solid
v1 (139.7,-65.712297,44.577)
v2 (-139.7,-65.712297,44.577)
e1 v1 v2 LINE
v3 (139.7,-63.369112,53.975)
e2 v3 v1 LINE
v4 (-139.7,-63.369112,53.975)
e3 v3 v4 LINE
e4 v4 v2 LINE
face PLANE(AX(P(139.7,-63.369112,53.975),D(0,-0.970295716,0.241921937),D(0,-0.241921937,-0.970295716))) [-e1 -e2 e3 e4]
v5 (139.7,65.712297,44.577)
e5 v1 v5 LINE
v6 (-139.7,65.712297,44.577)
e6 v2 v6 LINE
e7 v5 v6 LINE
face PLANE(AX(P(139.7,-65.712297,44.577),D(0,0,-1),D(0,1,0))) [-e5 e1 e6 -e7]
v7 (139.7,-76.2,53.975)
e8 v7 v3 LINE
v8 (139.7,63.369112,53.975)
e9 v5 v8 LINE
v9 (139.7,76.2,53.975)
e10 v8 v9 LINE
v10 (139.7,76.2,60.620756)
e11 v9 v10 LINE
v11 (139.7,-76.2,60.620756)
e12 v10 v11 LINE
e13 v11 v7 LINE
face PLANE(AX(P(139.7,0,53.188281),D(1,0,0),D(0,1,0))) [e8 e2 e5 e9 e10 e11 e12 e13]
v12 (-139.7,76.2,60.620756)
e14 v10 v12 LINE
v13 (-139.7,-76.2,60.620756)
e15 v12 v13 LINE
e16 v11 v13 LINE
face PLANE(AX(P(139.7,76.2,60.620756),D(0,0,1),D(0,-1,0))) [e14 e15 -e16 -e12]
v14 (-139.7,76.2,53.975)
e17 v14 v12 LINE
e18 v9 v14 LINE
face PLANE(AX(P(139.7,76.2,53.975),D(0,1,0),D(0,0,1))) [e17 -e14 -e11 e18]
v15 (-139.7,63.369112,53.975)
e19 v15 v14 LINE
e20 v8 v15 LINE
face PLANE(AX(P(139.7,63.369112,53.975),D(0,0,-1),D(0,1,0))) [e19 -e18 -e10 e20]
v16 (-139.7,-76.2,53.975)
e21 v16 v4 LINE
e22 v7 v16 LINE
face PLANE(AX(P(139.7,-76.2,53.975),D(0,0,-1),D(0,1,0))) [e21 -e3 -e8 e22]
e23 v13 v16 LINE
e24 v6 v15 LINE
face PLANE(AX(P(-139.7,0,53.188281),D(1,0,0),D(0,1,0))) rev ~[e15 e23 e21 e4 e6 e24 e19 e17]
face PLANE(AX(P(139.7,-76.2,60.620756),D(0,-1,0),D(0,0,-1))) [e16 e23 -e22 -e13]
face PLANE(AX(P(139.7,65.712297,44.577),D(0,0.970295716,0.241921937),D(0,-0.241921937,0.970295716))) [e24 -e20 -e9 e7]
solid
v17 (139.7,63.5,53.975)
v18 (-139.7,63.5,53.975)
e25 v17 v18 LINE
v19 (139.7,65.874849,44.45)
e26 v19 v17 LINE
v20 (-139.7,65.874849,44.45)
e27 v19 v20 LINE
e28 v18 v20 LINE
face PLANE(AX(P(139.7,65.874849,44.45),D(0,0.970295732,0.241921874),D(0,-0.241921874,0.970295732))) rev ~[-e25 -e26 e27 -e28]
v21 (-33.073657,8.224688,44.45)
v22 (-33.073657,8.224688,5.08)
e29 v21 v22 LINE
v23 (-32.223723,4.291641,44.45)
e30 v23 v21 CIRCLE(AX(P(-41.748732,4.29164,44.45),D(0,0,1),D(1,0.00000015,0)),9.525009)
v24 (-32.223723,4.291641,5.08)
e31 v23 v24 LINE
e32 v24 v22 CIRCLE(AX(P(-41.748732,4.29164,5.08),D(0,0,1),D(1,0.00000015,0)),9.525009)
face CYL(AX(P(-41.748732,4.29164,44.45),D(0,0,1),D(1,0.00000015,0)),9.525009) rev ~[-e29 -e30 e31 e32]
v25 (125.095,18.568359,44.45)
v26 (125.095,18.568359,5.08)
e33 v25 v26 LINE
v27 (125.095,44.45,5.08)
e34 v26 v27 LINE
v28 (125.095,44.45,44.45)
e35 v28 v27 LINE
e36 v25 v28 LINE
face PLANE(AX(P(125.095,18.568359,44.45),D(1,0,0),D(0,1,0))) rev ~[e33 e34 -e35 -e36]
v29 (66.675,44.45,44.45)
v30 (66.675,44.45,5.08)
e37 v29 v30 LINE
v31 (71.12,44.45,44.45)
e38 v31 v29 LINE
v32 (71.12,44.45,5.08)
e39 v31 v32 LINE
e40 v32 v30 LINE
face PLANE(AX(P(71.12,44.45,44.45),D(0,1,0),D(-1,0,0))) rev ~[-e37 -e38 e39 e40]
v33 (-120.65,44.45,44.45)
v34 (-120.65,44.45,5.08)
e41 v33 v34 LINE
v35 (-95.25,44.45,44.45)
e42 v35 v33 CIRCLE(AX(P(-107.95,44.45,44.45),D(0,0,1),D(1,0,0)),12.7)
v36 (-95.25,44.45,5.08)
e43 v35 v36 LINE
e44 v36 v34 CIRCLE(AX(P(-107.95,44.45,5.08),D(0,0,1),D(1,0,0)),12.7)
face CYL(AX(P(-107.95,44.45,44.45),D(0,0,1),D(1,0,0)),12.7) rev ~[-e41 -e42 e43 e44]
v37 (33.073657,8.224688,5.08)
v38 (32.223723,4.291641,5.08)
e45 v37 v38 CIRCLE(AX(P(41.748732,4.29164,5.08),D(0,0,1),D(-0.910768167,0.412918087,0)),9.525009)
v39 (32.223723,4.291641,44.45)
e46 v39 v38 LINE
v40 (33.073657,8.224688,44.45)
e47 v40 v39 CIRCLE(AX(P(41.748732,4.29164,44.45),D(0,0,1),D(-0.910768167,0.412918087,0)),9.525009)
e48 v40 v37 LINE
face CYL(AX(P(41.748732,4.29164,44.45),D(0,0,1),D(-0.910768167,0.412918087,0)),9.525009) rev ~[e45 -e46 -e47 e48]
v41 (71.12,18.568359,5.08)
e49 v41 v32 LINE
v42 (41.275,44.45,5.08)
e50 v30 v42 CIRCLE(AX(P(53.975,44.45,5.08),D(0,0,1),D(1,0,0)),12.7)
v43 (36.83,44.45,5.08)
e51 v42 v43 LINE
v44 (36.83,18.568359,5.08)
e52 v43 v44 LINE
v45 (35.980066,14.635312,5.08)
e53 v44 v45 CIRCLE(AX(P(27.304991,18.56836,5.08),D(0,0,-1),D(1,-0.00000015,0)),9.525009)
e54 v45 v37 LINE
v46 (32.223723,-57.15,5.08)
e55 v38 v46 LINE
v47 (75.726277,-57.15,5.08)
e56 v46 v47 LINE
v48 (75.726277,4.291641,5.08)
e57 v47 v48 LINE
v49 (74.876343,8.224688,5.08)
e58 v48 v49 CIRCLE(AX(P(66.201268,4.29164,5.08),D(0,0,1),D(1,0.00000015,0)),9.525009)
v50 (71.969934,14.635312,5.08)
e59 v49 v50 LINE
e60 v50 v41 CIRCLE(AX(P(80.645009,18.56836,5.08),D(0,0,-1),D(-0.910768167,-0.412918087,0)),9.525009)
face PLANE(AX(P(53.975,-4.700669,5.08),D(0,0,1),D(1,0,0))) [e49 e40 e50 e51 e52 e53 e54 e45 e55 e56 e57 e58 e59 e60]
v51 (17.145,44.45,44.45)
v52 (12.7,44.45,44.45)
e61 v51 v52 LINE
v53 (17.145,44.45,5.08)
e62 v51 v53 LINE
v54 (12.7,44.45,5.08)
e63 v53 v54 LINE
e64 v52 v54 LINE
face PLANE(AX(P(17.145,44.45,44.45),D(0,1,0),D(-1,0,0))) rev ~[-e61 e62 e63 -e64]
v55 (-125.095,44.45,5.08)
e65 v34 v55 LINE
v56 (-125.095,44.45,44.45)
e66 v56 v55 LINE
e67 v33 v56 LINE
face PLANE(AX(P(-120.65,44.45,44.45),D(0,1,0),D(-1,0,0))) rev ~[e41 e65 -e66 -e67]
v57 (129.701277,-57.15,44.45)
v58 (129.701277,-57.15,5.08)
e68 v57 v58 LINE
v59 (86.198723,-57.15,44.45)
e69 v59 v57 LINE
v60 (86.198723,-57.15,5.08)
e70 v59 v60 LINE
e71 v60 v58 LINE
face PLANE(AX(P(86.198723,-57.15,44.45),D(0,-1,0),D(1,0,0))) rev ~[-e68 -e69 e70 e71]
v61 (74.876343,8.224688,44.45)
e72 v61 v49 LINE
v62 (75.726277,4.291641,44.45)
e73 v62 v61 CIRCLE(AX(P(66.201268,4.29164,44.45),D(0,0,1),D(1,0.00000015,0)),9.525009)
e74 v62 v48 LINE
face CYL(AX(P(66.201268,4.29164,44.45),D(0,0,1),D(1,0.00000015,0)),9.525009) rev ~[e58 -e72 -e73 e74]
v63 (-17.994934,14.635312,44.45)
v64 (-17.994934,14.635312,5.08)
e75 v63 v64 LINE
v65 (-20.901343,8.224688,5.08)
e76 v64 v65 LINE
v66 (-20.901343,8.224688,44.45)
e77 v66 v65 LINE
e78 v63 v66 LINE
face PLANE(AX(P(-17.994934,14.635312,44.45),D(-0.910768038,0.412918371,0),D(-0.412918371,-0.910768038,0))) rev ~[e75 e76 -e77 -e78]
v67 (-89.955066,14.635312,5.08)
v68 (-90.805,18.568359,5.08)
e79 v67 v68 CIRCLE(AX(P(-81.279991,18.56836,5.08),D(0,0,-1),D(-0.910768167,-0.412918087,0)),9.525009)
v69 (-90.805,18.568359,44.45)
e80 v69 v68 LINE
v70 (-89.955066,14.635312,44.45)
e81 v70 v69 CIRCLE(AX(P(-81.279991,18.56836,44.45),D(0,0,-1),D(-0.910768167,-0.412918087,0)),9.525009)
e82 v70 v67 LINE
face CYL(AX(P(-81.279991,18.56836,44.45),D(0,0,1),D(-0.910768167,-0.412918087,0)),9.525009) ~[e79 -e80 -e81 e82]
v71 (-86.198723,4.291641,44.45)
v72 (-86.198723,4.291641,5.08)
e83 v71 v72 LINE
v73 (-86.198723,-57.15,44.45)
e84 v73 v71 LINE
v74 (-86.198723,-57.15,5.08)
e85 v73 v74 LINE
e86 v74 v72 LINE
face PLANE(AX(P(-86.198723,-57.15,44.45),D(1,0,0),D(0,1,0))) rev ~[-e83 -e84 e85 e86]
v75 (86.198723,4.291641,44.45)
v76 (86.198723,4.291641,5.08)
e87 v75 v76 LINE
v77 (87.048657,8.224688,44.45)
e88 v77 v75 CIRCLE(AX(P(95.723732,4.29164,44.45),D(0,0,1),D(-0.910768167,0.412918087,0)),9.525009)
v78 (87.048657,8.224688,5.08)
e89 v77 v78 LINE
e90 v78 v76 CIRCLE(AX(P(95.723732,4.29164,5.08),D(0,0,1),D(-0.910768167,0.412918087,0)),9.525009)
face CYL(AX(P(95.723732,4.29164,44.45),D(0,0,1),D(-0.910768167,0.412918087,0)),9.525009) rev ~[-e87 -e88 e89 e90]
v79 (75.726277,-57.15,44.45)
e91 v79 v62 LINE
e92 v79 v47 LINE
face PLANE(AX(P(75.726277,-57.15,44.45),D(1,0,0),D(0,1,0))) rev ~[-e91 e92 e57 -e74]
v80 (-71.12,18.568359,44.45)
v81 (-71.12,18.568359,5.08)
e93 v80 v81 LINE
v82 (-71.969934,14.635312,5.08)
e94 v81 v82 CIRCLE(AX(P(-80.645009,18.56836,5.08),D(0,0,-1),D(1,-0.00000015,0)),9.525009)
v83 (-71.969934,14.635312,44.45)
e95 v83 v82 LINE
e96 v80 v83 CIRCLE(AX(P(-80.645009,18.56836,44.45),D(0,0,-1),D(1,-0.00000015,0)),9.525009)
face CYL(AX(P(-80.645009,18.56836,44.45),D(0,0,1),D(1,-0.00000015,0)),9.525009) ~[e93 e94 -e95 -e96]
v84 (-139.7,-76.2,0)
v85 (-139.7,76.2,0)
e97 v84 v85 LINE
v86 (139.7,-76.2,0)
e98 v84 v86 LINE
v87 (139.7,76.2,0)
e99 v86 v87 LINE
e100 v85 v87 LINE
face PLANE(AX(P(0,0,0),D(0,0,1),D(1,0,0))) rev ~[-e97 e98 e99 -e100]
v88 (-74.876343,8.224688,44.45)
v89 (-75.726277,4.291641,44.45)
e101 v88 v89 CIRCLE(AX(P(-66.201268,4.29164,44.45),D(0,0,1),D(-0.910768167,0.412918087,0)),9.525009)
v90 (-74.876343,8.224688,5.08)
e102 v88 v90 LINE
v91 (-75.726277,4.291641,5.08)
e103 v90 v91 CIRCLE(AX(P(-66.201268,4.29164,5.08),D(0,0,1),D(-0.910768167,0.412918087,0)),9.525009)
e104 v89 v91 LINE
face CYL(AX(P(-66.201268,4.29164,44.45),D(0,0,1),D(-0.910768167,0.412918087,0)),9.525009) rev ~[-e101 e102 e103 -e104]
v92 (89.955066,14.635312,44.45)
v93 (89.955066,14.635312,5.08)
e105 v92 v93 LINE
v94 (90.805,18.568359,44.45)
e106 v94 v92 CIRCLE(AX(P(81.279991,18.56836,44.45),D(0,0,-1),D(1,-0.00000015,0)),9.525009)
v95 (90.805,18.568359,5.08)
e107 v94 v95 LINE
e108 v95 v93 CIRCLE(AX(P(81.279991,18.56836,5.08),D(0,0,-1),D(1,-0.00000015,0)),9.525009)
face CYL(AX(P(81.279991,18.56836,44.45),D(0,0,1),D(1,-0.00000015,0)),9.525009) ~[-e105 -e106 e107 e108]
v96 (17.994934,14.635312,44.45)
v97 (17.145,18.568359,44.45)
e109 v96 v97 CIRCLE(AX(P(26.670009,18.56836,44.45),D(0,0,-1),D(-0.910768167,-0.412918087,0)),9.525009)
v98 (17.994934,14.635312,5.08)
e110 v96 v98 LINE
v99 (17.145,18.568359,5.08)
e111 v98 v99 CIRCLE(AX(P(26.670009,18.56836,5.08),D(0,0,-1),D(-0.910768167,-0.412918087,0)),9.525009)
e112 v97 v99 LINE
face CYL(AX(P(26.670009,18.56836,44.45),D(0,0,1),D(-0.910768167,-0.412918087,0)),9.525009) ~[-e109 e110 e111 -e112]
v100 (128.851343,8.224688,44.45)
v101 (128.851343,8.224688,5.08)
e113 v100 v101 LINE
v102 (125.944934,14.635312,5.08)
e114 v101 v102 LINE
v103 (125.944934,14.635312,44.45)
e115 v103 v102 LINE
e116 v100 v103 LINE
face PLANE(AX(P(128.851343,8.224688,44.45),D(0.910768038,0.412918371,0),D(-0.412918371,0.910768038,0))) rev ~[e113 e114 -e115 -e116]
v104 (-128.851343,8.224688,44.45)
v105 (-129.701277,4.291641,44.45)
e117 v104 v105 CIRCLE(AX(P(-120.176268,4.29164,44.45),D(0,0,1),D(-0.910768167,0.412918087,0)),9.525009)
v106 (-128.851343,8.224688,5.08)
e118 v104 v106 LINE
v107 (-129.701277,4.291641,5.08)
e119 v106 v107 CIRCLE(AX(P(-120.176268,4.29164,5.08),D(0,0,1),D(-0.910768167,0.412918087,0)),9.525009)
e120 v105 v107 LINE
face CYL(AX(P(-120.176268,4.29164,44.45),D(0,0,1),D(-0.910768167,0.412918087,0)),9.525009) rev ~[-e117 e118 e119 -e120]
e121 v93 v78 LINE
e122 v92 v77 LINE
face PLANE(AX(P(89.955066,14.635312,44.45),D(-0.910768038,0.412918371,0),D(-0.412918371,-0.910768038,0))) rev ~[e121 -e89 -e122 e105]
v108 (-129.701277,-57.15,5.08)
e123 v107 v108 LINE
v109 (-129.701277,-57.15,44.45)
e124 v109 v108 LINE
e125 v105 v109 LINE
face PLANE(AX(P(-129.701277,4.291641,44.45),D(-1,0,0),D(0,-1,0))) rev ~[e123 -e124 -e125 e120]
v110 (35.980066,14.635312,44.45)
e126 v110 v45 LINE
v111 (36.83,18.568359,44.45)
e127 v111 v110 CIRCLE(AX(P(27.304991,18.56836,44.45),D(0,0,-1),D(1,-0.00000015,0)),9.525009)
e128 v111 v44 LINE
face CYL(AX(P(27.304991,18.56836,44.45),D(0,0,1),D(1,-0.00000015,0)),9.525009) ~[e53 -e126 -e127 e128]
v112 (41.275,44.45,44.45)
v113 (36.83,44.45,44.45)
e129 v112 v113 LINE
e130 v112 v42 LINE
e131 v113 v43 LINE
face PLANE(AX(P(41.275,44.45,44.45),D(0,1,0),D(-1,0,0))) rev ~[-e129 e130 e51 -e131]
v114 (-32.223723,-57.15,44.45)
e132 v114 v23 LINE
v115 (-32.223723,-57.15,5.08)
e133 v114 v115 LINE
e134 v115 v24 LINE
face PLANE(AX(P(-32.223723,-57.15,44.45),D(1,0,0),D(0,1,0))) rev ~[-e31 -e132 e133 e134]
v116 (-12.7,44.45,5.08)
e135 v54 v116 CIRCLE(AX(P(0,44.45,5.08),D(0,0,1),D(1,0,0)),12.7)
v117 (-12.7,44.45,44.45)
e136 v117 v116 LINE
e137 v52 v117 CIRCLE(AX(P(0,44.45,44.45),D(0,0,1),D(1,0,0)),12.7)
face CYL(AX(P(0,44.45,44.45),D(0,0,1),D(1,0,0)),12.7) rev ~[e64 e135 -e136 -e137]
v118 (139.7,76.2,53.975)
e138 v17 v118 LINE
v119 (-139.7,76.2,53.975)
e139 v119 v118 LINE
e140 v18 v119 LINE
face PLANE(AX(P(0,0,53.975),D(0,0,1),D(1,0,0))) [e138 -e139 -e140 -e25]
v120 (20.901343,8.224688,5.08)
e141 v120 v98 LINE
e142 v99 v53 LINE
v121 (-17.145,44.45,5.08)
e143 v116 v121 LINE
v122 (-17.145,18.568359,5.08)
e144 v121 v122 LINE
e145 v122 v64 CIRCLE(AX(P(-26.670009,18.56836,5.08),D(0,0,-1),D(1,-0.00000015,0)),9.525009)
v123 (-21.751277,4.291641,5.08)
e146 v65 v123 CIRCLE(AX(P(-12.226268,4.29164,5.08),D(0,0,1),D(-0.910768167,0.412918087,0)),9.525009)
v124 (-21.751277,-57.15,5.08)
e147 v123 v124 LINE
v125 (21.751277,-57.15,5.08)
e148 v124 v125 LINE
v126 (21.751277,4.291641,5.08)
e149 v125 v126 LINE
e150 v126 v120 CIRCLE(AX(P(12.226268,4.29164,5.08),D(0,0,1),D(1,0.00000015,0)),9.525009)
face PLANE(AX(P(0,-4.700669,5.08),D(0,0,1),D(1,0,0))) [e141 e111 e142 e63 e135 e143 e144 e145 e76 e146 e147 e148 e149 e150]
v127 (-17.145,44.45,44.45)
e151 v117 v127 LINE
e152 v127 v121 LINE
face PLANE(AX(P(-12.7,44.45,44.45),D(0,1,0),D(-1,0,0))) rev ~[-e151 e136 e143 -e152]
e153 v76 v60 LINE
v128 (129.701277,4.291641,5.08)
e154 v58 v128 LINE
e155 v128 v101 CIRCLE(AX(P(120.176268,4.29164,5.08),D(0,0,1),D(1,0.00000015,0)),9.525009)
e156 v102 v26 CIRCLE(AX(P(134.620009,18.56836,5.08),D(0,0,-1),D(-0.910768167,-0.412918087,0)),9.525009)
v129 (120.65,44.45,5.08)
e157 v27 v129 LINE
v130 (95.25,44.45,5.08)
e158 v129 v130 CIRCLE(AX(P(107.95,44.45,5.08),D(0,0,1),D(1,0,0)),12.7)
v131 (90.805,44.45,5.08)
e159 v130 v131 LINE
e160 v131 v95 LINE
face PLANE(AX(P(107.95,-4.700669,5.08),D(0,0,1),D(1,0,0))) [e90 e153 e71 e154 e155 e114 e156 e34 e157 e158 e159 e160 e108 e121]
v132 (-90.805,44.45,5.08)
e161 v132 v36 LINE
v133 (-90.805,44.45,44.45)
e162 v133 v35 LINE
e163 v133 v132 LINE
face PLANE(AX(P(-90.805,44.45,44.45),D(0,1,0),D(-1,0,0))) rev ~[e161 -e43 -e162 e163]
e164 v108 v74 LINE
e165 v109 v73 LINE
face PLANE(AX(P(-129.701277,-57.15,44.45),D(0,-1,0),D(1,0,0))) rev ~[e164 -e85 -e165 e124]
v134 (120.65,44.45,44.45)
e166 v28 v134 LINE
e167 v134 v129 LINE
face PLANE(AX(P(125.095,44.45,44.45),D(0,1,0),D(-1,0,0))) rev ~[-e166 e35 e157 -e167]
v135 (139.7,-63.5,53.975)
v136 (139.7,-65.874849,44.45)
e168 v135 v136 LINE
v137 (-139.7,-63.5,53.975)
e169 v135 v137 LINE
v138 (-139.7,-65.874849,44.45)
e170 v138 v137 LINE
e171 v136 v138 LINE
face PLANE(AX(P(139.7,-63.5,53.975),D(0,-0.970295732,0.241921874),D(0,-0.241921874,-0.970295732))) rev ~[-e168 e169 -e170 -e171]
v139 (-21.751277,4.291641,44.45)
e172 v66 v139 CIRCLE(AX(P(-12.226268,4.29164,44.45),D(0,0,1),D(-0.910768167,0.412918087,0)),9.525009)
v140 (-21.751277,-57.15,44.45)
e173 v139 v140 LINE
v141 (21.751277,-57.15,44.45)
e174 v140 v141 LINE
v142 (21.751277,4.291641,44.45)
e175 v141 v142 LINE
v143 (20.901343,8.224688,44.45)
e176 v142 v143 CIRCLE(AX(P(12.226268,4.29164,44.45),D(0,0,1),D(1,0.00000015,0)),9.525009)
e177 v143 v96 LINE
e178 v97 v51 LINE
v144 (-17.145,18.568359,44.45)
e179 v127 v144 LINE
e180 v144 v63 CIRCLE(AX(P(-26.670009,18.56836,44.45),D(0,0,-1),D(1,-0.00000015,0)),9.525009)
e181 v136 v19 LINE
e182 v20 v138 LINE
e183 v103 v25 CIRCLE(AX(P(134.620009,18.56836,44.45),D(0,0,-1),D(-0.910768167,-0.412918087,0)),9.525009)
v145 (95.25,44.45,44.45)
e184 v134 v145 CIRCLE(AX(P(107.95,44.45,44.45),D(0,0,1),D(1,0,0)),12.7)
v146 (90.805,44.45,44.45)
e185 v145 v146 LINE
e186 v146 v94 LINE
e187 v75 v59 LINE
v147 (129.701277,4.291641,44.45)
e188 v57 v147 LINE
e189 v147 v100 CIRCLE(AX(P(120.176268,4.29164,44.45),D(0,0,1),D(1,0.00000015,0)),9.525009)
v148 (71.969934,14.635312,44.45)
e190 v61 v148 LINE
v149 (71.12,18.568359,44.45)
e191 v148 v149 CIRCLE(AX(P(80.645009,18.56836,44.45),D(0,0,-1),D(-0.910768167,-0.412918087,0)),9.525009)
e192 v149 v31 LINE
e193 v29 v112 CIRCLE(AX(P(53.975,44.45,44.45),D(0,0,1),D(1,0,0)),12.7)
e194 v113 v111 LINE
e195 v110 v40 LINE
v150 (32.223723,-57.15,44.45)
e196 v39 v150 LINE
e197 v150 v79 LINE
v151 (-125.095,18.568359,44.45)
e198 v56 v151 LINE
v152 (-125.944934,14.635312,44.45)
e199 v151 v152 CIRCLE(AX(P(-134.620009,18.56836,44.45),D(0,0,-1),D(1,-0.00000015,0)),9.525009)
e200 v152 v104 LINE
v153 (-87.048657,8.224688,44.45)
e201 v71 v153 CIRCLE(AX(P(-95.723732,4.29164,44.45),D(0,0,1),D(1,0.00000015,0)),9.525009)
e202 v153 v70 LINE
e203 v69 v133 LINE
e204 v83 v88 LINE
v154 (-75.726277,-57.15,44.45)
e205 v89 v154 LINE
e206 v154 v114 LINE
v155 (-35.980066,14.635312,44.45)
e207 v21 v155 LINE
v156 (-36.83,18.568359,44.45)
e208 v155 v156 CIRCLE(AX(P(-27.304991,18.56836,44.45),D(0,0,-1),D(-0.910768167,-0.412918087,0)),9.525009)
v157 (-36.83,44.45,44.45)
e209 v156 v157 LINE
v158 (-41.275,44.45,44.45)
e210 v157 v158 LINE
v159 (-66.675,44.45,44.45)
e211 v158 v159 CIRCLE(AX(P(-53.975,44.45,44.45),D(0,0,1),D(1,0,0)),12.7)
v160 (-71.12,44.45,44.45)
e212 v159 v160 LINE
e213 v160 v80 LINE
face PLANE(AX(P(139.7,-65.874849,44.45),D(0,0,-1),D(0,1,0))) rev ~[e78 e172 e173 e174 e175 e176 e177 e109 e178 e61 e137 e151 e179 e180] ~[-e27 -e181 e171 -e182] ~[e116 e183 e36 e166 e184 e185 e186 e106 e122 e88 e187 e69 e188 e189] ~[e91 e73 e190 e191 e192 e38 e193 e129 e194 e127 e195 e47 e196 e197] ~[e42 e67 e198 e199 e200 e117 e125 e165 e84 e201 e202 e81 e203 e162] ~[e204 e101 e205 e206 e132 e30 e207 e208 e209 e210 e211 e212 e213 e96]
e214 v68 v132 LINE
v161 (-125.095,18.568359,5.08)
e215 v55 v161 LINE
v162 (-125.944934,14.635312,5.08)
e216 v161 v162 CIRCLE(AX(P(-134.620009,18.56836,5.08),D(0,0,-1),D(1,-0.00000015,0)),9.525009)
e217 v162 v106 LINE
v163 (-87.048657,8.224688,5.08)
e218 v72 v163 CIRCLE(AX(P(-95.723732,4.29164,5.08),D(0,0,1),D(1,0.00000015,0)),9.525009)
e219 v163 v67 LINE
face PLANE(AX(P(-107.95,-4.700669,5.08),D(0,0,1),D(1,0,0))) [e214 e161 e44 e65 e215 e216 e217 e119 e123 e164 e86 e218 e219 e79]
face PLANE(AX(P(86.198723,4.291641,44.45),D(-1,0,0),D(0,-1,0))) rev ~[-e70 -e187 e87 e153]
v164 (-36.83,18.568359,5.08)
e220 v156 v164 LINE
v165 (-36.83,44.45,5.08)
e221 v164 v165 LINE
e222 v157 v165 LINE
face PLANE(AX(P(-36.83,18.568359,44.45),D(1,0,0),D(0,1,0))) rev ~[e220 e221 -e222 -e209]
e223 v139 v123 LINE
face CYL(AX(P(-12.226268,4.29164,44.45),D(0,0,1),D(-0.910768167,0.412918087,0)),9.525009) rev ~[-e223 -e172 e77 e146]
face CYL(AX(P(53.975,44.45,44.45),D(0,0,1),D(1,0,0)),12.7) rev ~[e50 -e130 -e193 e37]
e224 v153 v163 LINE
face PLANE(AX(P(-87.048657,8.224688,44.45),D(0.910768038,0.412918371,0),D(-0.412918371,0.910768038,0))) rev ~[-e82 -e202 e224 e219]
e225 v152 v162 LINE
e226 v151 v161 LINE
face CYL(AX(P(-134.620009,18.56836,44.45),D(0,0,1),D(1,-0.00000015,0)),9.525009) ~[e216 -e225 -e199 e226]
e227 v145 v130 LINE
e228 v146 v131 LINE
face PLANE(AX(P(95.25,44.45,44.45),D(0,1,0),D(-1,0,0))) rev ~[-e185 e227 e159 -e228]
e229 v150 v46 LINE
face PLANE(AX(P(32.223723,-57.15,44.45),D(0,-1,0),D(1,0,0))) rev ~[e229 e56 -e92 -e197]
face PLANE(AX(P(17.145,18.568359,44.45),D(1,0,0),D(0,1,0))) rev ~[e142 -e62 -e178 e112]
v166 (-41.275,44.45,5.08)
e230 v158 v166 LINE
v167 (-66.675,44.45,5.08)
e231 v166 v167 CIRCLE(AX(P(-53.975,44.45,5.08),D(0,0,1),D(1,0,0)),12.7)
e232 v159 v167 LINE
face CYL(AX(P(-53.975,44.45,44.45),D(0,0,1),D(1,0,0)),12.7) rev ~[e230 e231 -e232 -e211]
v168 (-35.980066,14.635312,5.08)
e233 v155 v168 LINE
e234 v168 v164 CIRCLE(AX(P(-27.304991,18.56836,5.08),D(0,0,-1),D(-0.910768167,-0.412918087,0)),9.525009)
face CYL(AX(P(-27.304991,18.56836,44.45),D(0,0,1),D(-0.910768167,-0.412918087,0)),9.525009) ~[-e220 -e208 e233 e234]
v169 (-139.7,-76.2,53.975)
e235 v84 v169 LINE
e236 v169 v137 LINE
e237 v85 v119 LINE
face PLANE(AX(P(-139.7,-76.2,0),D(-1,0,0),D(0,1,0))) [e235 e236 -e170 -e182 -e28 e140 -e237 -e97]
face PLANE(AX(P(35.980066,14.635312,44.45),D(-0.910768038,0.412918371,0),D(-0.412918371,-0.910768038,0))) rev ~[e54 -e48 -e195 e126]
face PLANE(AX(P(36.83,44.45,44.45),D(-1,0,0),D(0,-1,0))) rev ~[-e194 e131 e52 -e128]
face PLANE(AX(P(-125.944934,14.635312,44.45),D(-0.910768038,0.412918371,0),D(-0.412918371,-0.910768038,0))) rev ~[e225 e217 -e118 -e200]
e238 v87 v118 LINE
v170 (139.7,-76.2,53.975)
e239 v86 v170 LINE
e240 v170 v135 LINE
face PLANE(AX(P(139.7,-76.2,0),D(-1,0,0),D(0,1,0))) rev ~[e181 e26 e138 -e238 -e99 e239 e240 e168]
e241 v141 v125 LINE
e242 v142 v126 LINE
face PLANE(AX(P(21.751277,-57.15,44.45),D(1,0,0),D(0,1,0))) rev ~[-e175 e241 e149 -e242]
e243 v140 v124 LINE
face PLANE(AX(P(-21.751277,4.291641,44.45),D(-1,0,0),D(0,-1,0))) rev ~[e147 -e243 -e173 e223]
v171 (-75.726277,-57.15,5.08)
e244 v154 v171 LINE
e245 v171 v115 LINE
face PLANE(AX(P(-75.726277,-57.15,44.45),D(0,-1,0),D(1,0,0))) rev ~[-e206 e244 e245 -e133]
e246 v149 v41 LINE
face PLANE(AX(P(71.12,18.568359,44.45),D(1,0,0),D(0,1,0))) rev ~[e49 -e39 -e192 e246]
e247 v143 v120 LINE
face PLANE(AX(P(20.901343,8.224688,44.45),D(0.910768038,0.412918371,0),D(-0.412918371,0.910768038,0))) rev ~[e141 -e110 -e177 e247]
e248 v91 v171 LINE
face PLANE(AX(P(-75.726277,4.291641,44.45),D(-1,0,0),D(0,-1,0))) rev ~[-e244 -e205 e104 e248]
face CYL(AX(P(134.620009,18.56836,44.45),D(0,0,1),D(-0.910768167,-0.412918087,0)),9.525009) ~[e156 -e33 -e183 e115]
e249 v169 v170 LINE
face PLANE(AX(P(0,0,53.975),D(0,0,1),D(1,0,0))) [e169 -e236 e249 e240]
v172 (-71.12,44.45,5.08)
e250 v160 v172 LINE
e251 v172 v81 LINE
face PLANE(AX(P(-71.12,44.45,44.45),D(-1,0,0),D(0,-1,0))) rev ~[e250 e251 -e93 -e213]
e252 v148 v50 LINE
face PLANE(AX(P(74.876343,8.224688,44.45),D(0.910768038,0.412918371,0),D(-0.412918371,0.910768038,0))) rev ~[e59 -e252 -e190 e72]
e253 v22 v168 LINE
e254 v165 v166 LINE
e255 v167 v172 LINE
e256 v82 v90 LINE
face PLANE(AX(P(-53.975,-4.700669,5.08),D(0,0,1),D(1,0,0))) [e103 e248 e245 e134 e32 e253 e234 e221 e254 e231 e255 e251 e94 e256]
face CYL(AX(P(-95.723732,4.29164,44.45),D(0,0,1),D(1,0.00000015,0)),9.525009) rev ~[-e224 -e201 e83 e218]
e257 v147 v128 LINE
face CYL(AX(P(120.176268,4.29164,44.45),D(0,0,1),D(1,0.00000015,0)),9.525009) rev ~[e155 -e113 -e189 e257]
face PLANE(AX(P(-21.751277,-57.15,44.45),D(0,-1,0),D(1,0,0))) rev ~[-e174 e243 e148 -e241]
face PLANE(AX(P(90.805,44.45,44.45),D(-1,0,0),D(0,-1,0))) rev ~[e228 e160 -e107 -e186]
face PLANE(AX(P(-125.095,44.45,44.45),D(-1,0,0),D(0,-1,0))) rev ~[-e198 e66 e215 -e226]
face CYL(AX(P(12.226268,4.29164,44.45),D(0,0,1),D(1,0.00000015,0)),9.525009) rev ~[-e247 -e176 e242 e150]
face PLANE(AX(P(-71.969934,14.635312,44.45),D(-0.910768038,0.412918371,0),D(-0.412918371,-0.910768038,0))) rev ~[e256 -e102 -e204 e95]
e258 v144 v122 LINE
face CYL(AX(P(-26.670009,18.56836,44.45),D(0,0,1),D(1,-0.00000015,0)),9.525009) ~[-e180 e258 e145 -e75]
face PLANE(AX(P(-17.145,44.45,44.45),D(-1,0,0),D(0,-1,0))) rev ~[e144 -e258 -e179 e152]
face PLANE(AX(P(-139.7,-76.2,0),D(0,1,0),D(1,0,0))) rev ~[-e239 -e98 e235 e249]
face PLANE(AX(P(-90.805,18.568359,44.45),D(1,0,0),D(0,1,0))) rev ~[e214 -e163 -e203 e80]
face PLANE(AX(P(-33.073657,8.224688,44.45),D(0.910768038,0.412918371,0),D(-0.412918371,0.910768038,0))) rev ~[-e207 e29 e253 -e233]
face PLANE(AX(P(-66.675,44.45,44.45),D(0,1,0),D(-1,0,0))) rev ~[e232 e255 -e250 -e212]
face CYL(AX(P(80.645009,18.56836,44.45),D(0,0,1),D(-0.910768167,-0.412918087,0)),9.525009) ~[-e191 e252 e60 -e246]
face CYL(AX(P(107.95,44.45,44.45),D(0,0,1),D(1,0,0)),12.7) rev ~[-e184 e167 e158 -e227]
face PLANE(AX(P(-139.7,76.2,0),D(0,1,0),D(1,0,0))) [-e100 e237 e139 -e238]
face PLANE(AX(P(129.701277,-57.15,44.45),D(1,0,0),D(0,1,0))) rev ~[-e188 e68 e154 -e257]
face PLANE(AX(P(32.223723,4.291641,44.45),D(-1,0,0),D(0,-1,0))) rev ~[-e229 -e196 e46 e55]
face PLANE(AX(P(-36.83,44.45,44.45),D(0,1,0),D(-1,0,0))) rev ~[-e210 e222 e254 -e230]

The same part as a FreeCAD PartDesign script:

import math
import FreeCAD as App
import Part
import Sketcher

V = App.Vector
Q = App.Units.Quantity

doc = App.newDocument("Part")
params = doc.addObject("Spreadsheet::Sheet", "Params")
for row, (alias, value) in enumerate([
    ("sketch1_width", "11 in"),
    ("sketch1_height", "6 in"),
    ("pad1_length", "2.125 in"),
    ("sketch2_width", "5 in"),
    ("sketch3_radius", "0.5 in"),
    ("sketch3_width", "0.175 in"),
    ("pocket2_length", "1.55 in"),
    ("sketch4_width", "6 in"),
    ("pad2_length", "11 in"),
], start=1):
    params.set(f"A{row}", alias)
    params.set(f"B{row}", "=" + value)
    params.setAlias(f"B{row}", alias)

body = doc.addObject("PartDesign::Body", "Body")

# Sketch on XY plane
sketch1 = body.newObject("Sketcher::SketchObject", "Sketch")
sketch1.AttachmentSupport = (doc.getObject("XY_Plane"), [""])
sketch1.MapMode = "FlatFace"
sketch1.addGeometry([
    Part.LineSegment(V(-139.7, 76.2, 0), V(-139.7, -76.2, 0)),
    Part.LineSegment(V(-139.7, -76.2, 0), V(139.7, -76.2, 0)),
    Part.LineSegment(V(139.7, -76.2, 0), V(139.7, 76.2, 0)),
    Part.LineSegment(V(139.7, 76.2, 0), V(-139.7, 76.2, 0)),
], False)
sketch1.addConstraint([
    Sketcher.Constraint("Coincident", 0, 2, 1, 1),
    Sketcher.Constraint("Coincident", 1, 2, 2, 1),
    Sketcher.Constraint("Coincident", 2, 2, 3, 1),
    Sketcher.Constraint("Coincident", 3, 2, 0, 1),
    Sketcher.Constraint("Vertical", 0),
    Sketcher.Constraint("Horizontal", 1),
    Sketcher.Constraint("Vertical", 2),
    Sketcher.Constraint("Horizontal", 3),
    Sketcher.Constraint("Symmetric", 0, 2, 2, 2, -1, 1),
    Sketcher.Constraint("DistanceX", 1, 1, 1, 2, Q("11 in")),
    Sketcher.Constraint("DistanceY", 0, 2, 0, 1, Q("6 in")),
])
sketch1.setExpression("Constraints[9]", "Params.sketch1_width")
sketch1.setExpression("Constraints[10]", "Params.sketch1_height")
pad1 = body.newObject("PartDesign::Pad", "Pad")
pad1.Profile = sketch1
pad1.setExpression("Length", "Params.pad1_length")

# Sketch on YZ plane
sketch2 = body.newObject("Sketcher::SketchObject", "Sketch001")
sketch2.AttachmentSupport = (doc.getObject("YZ_Plane"), [""])
sketch2.MapMode = "FlatFace"
sketch2.AttachmentOffset = App.Placement(V(0, 0, 5.5 * 25.4), App.Rotation())
sketch2.addGeometry([
    Part.LineSegment(V(-63.5, 53.975, 0), V(-65.874849, 44.45, 0)),
    Part.LineSegment(V(-65.874849, 44.45, 0), V(65.874849, 44.45, 0)),
    Part.LineSegment(V(65.874849, 44.45, 0), V(63.5, 53.975, 0)),
    Part.LineSegment(V(63.5, 53.975, 0), V(-63.5, 53.975, 0)),
], False)
sketch2.addConstraint([
    Sketcher.Constraint("Coincident", 0, 2, 1, 1),
    Sketcher.Constraint("Coincident", 1, 2, 2, 1),
    Sketcher.Constraint("Coincident", 2, 2, 3, 1),
    Sketcher.Constraint("Coincident", 3, 2, 0, 1),
    Sketcher.Constraint("Horizontal", 1),
    Sketcher.Constraint("Horizontal", 3),
    Sketcher.Constraint("Equal", 0, 2),
    Sketcher.Constraint("DistanceX", 3, 2, 3, 1, Q("5 in")),
    Sketcher.Constraint("Angle", 0, Q("-103.999999 deg")),
    Sketcher.Constraint("DistanceX", -1, 1, 2, 2, Q("2.5 in")),
    Sketcher.Constraint("DistanceY", -1, 1, 0, 2, Q("1.75 in")),
    Sketcher.Constraint("DistanceY", -1, 1, 2, 2, Q("2.125 in")),
])
sketch2.setExpression("Constraints[7]", "Params.sketch2_width")
pocket1 = body.newObject("PartDesign::Pocket", "Pocket")
pocket1.Profile = sketch2
pocket1.Type = "ThroughAll"

# Sketch on XY plane
sketch3 = body.newObject("Sketcher::SketchObject", "Sketch002")
sketch3.AttachmentSupport = (doc.getObject("XY_Plane"), [""])
sketch3.MapMode = "FlatFace"
sketch3.AttachmentOffset = App.Placement(V(0, 0, 1.75 * 25.4), App.Rotation())
sketch3.addGeometry([
    Part.LineSegment(V(-129.701277, -57.15, 0), V(-86.198723, -57.15, 0)),  # 0
    Part.LineSegment(V(-86.198723, -57.15, 0), V(-86.198723, 4.291641, 0)),  # 1
    Part.ArcOfCircle(Part.Circle(V(-95.723732, 4.29164, 0), V(0, 0, 1), 9.525009), math.radians(0.000009), math.radians(24.388277)),  # 2
    Part.LineSegment(V(-87.048657, 8.224688, 0), V(-89.955066, 14.635312, 0)),  # 3
    Part.ArcOfCircle(Part.Circle(V(-81.279991, 18.56836, 0), V(0, 0, 1), 9.525009), math.radians(-179.999991), math.radians(-155.611723)),  # 4
    Part.LineSegment(V(-90.805, 18.568359, 0), V(-90.805, 44.45, 0)),  # 5
    Part.LineSegment(V(-90.805, 44.45, 0), V(-95.25, 44.45, 0)),  # 6
    Part.ArcOfCircle(Part.Circle(V(-107.95, 44.45, 0), V(0, 0, 1), 12.7), math.radians(0), math.radians(180)),  # 7
    Part.LineSegment(V(-120.65, 44.45, 0), V(-125.095, 44.45, 0)),  # 8
    Part.LineSegment(V(-125.095, 44.45, 0), V(-125.095, 18.568359, 0)),  # 9
    Part.ArcOfCircle(Part.Circle(V(-134.620009, 18.56836, 0), V(0, 0, 1), 9.525009), math.radians(-24.388277), math.radians(-0.000009)),  # 10
    Part.LineSegment(V(-125.944934, 14.635312, 0), V(-128.851343, 8.224688, 0)),  # 11
    Part.ArcOfCircle(Part.Circle(V(-120.176268, 4.29164, 0), V(0, 0, 1), 9.525009), math.radians(155.611723), math.radians(179.999991)),  # 12
    Part.LineSegment(V(-129.701277, 4.291641, 0), V(-129.701277, -57.15, 0)),  # 13
    Part.LineSegment(V(-36.83, 18.568359, 0), V(-36.83, 44.45, 0)),  # 14
    Part.LineSegment(V(-36.83, 44.45, 0), V(-41.275, 44.45, 0)),  # 15
    Part.ArcOfCircle(Part.Circle(V(-53.975, 44.45, 0), V(0, 0, 1), 12.7), math.radians(0), math.radians(180)),  # 16
    Part.LineSegment(V(-66.675, 44.45, 0), V(-71.12, 44.45, 0)),  # 17
    Part.LineSegment(V(-71.12, 44.45, 0), V(-71.12, 18.568359, 0)),  # 18
    Part.ArcOfCircle(Part.Circle(V(-80.645009, 18.56836, 0), V(0, 0, 1), 9.525009), math.radians(-24.388277), math.radians(-0.000009)),  # 19
    Part.LineSegment(V(-71.969934, 14.635312, 0), V(-74.876343, 8.224688, 0)),  # 20
    Part.ArcOfCircle(Part.Circle(V(-66.201268, 4.29164, 0), V(0, 0, 1), 9.525009), math.radians(155.611723), math.radians(179.999991)),  # 21
    Part.LineSegment(V(-75.726277, 4.291641, 0), V(-75.726277, -57.15, 0)),  # 22
    Part.LineSegment(V(-75.726277, -57.15, 0), V(-32.223723, -57.15, 0)),  # 23
    Part.LineSegment(V(-32.223723, -57.15, 0), V(-32.223723, 4.291641, 0)),  # 24
    Part.ArcOfCircle(Part.Circle(V(-41.748732, 4.29164, 0), V(0, 0, 1), 9.525009), math.radians(0.000009), math.radians(24.388277)),  # 25
    Part.LineSegment(V(-33.073657, 8.224688, 0), V(-35.980066, 14.635312, 0)),  # 26
    Part.ArcOfCircle(Part.Circle(V(-27.304991, 18.56836, 0), V(0, 0, 1), 9.525009), math.radians(-179.999991), math.radians(-155.611723)),  # 27
    Part.LineSegment(V(17.145, 18.568359, 0), V(17.145, 44.45, 0)),  # 28
    Part.LineSegment(V(17.145, 44.45, 0), V(12.7, 44.45, 0)),  # 29
    Part.ArcOfCircle(Part.Circle(V(0, 44.45, 0), V(0, 0, 1), 12.7), math.radians(0), math.radians(180)),  # 30
    Part.LineSegment(V(-12.7, 44.45, 0), V(-17.145, 44.45, 0)),  # 31
    Part.LineSegment(V(-17.145, 44.45, 0), V(-17.145, 18.568359, 0)),  # 32
    Part.ArcOfCircle(Part.Circle(V(-26.670009, 18.56836, 0), V(0, 0, 1), 9.525009), math.radians(-24.388277), math.radians(-0.000009)),  # 33
    Part.LineSegment(V(-17.994934, 14.635312, 0), V(-20.901343, 8.224688, 0)),  # 34
    Part.ArcOfCircle(Part.Circle(V(-12.226268, 4.29164, 0), V(0, 0, 1), 9.525009), math.radians(155.611723), math.radians(179.999991)),  # 35
    Part.LineSegment(V(-21.751277, 4.291641, 0), V(-21.751277, -57.15, 0)),  # 36
    Part.LineSegment(V(-21.751277, -57.15, 0), V(21.751277, -57.15, 0)),  # 37
    Part.LineSegment(V(21.751277, -57.15, 0), V(21.751277, 4.291641, 0)),  # 38
    Part.ArcOfCircle(Part.Circle(V(12.226268, 4.29164, 0), V(0, 0, 1), 9.525009), math.radians(0.000009), math.radians(24.388277)),  # 39
    Part.LineSegment(V(20.901343, 8.224688, 0), V(17.994934, 14.635312, 0)),  # 40
    Part.ArcOfCircle(Part.Circle(V(26.670009, 18.56836, 0), V(0, 0, 1), 9.525009), math.radians(-179.999991), math.radians(-155.611723)),  # 41
    Part.LineSegment(V(71.12, 18.568359, 0), V(71.12, 44.45, 0)),  # 42
    Part.LineSegment(V(71.12, 44.45, 0), V(66.675, 44.45, 0)),  # 43
    Part.ArcOfCircle(Part.Circle(V(53.975, 44.45, 0), V(0, 0, 1), 12.7), math.radians(0), math.radians(180)),  # 44
    Part.LineSegment(V(41.275, 44.45, 0), V(36.83, 44.45, 0)),  # 45
    Part.LineSegment(V(36.83, 44.45, 0), V(36.83, 18.568359, 0)),  # 46
    Part.ArcOfCircle(Part.Circle(V(27.304991, 18.56836, 0), V(0, 0, 1), 9.525009), math.radians(-24.388277), math.radians(-0.000009)),  # 47
    Part.LineSegment(V(35.980066, 14.635312, 0), V(33.073657, 8.224688, 0)),  # 48
    Part.ArcOfCircle(Part.Circle(V(41.748732, 4.29164, 0), V(0, 0, 1), 9.525009), math.radians(155.611723), math.radians(179.999991)),  # 49
    Part.LineSegment(V(32.223723, 4.291641, 0), V(32.223723, -57.15, 0)),  # 50
    Part.LineSegment(V(32.223723, -57.15, 0), V(75.726277, -57.15, 0)),  # 51
    Part.LineSegment(V(75.726277, -57.15, 0), V(75.726277, 4.291641, 0)),  # 52
    Part.ArcOfCircle(Part.Circle(V(66.201268, 4.29164, 0), V(0, 0, 1), 9.525009), math.radians(0.000009), math.radians(24.388277)),  # 53
    Part.LineSegment(V(74.876343, 8.224688, 0), V(71.969934, 14.635312, 0)),  # 54
    Part.ArcOfCircle(Part.Circle(V(80.645009, 18.56836, 0), V(0, 0, 1), 9.525009), math.radians(-179.999991), math.radians(-155.611723)),  # 55
    Part.LineSegment(V(125.095, 18.568359, 0), V(125.095, 44.45, 0)),  # 56
    Part.LineSegment(V(125.095, 44.45, 0), V(120.65, 44.45, 0)),  # 57
    Part.ArcOfCircle(Part.Circle(V(107.95, 44.45, 0), V(0, 0, 1), 12.7), math.radians(0), math.radians(180)),  # 58
    Part.LineSegment(V(95.25, 44.45, 0), V(90.805, 44.45, 0)),  # 59
    Part.LineSegment(V(90.805, 44.45, 0), V(90.805, 18.568359, 0)),  # 60
    Part.ArcOfCircle(Part.Circle(V(81.279991, 18.56836, 0), V(0, 0, 1), 9.525009), math.radians(-24.388277), math.radians(-0.000009)),  # 61
    Part.LineSegment(V(89.955066, 14.635312, 0), V(87.048657, 8.224688, 0)),  # 62
    Part.ArcOfCircle(Part.Circle(V(95.723732, 4.29164, 0), V(0, 0, 1), 9.525009), math.radians(155.611723), math.radians(179.999991)),  # 63
    Part.LineSegment(V(86.198723, 4.291641, 0), V(86.198723, -57.15, 0)),  # 64
    Part.LineSegment(V(86.198723, -57.15, 0), V(129.701277, -57.15, 0)),  # 65
    Part.LineSegment(V(129.701277, -57.15, 0), V(129.701277, 4.291641, 0)),  # 66
    Part.ArcOfCircle(Part.Circle(V(120.176268, 4.29164, 0), V(0, 0, 1), 9.525009), math.radians(0.000009), math.radians(24.388277)),  # 67
    Part.LineSegment(V(128.851343, 8.224688, 0), V(125.944934, 14.635312, 0)),  # 68
    Part.ArcOfCircle(Part.Circle(V(134.620009, 18.56836, 0), V(0, 0, 1), 9.525009), math.radians(-179.999991), math.radians(-155.611723)),  # 69
], False)
sketch3.addConstraint([
    Sketcher.Constraint("Coincident", 0, 2, 1, 1),
    Sketcher.Constraint("Tangent", 1, 2, 2, 1),
    Sketcher.Constraint("Tangent", 2, 2, 3, 1),
    Sketcher.Constraint("Tangent", 3, 2, 4, 2),
    Sketcher.Constraint("Tangent", 4, 1, 5, 1),
    Sketcher.Constraint("Coincident", 5, 2, 6, 1),
    Sketcher.Constraint("Coincident", 6, 2, 7, 1),
    Sketcher.Constraint("Coincident", 7, 2, 8, 1),
    Sketcher.Constraint("Coincident", 8, 2, 9, 1),
    Sketcher.Constraint("Tangent", 9, 2, 10, 2),
    Sketcher.Constraint("Tangent", 10, 1, 11, 1),
    Sketcher.Constraint("Tangent", 11, 2, 12, 1),
    Sketcher.Constraint("Tangent", 12, 2, 13, 1),
    Sketcher.Constraint("Coincident", 13, 2, 0, 1),
    Sketcher.Constraint("Coincident", 14, 2, 15, 1),
    Sketcher.Constraint("Coincident", 15, 2, 16, 1),
    Sketcher.Constraint("Coincident", 16, 2, 17, 1),
    Sketcher.Constraint("Coincident", 17, 2, 18, 1),
    Sketcher.Constraint("Tangent", 18, 2, 19, 2),
    Sketcher.Constraint("Tangent", 19, 1, 20, 1),
    Sketcher.Constraint("Tangent", 20, 2, 21, 1),
    Sketcher.Constraint("Tangent", 21, 2, 22, 1),
    Sketcher.Constraint("Coincident", 22, 2, 23, 1),
    Sketcher.Constraint("Coincident", 23, 2, 24, 1),
    Sketcher.Constraint("Tangent", 24, 2, 25, 1),
    Sketcher.Constraint("Tangent", 25, 2, 26, 1),
    Sketcher.Constraint("Tangent", 26, 2, 27, 2),
    Sketcher.Constraint("Tangent", 27, 1, 14, 1),
    Sketcher.Constraint("Coincident", 28, 2, 29, 1),
    Sketcher.Constraint("Coincident", 29, 2, 30, 1),
    Sketcher.Constraint("Coincident", 30, 2, 31, 1),
    Sketcher.Constraint("Coincident", 31, 2, 32, 1),
    Sketcher.Constraint("Tangent", 32, 2, 33, 2),
    Sketcher.Constraint("Tangent", 33, 1, 34, 1),
    Sketcher.Constraint("Tangent", 34, 2, 35, 1),
    Sketcher.Constraint("Tangent", 35, 2, 36, 1),
    Sketcher.Constraint("Coincident", 36, 2, 37, 1),
    Sketcher.Constraint("Coincident", 37, 2, 38, 1),
    Sketcher.Constraint("Tangent", 38, 2, 39, 1),
    Sketcher.Constraint("Tangent", 39, 2, 40, 1),
    Sketcher.Constraint("Tangent", 40, 2, 41, 2),
    Sketcher.Constraint("Tangent", 41, 1, 28, 1),
    Sketcher.Constraint("Coincident", 42, 2, 43, 1),
    Sketcher.Constraint("Coincident", 43, 2, 44, 1),
    Sketcher.Constraint("Coincident", 44, 2, 45, 1),
    Sketcher.Constraint("Coincident", 45, 2, 46, 1),
    Sketcher.Constraint("Tangent", 46, 2, 47, 2),
    Sketcher.Constraint("Tangent", 47, 1, 48, 1),
    Sketcher.Constraint("Tangent", 48, 2, 49, 1),
    Sketcher.Constraint("Tangent", 49, 2, 50, 1),
    Sketcher.Constraint("Coincident", 50, 2, 51, 1),
    Sketcher.Constraint("Coincident", 51, 2, 52, 1),
    Sketcher.Constraint("Tangent", 52, 2, 53, 1),
    Sketcher.Constraint("Tangent", 53, 2, 54, 1),
    Sketcher.Constraint("Tangent", 54, 2, 55, 2),
    Sketcher.Constraint("Tangent", 55, 1, 42, 1),
    Sketcher.Constraint("Coincident", 56, 2, 57, 1),
    Sketcher.Constraint("Coincident", 57, 2, 58, 1),
    Sketcher.Constraint("Coincident", 58, 2, 59, 1),
    Sketcher.Constraint("Coincident", 59, 2, 60, 1),
    Sketcher.Constraint("Tangent", 60, 2, 61, 2),
    Sketcher.Constraint("Tangent", 61, 1, 62, 1),
    Sketcher.Constraint("Tangent", 62, 2, 63, 1),
    Sketcher.Constraint("Tangent", 63, 2, 64, 1),
    Sketcher.Constraint("Coincident", 64, 2, 65, 1),
    Sketcher.Constraint("Coincident", 65, 2, 66, 1),
    Sketcher.Constraint("Tangent", 66, 2, 67, 1),
    Sketcher.Constraint("Tangent", 67, 2, 68, 1),
    Sketcher.Constraint("Tangent", 68, 2, 69, 2),
    Sketcher.Constraint("Tangent", 69, 1, 56, 1),
    Sketcher.Constraint("Horizontal", 0),
    Sketcher.Constraint("Vertical", 1),
    Sketcher.Constraint("Vertical", 5),
    Sketcher.Constraint("Horizontal", 6),
    Sketcher.Constraint("Horizontal", 8),
    Sketcher.Constraint("Vertical", 9),
    Sketcher.Constraint("Vertical", 13),
    Sketcher.Constraint("Vertical", 14),
    Sketcher.Constraint("Horizontal", 15),
    Sketcher.Constraint("Horizontal", 17),
    Sketcher.Constraint("Vertical", 18),
    Sketcher.Constraint("Vertical", 22),
    Sketcher.Constraint("Horizontal", 23),
    Sketcher.Constraint("Vertical", 24),
    Sketcher.Constraint("Vertical", 28),
    Sketcher.Constraint("Horizontal", 29),
    Sketcher.Constraint("Horizontal", 31),
    Sketcher.Constraint("Vertical", 32),
    Sketcher.Constraint("Vertical", 36),
    Sketcher.Constraint("Horizontal", 37),
    Sketcher.Constraint("Vertical", 38),
    Sketcher.Constraint("Vertical", 42),
    Sketcher.Constraint("Horizontal", 43),
    Sketcher.Constraint("Horizontal", 45),
    Sketcher.Constraint("Vertical", 46),
    Sketcher.Constraint("Vertical", 50),
    Sketcher.Constraint("Horizontal", 51),
    Sketcher.Constraint("Vertical", 52),
    Sketcher.Constraint("Vertical", 56),
    Sketcher.Constraint("Horizontal", 57),
    Sketcher.Constraint("Horizontal", 59),
    Sketcher.Constraint("Vertical", 60),
    Sketcher.Constraint("Vertical", 64),
    Sketcher.Constraint("Horizontal", 65),
    Sketcher.Constraint("Vertical", 66),
    Sketcher.Constraint("Equal", 2, 4),
    Sketcher.Constraint("Equal", 4, 10),
    Sketcher.Constraint("Equal", 10, 12),
    Sketcher.Constraint("Equal", 7, 16),
    Sketcher.Constraint("Equal", 12, 19),
    Sketcher.Constraint("Equal", 19, 21),
    Sketcher.Constraint("Equal", 21, 25),
    Sketcher.Constraint("Equal", 25, 27),
    Sketcher.Constraint("Equal", 16, 30),
    Sketcher.Constraint("Equal", 27, 33),
    Sketcher.Constraint("Equal", 33, 35),
    Sketcher.Constraint("Equal", 35, 39),
    Sketcher.Constraint("Equal", 39, 41),
    Sketcher.Constraint("Equal", 30, 44),
    Sketcher.Constraint("Equal", 41, 47),
    Sketcher.Constraint("Equal", 47, 49),
    Sketcher.Constraint("Equal", 49, 53),
    Sketcher.Constraint("Equal", 53, 55),
    Sketcher.Constraint("Equal", 44, 58),
    Sketcher.Constraint("Equal", 55, 61),
    Sketcher.Constraint("Equal", 61, 63),
    Sketcher.Constraint("Equal", 63, 67),
    Sketcher.Constraint("Equal", 67, 69),
    Sketcher.Constraint("Symmetric", 35, 3, 39, 3, -2),
    Sketcher.Constraint("Symmetric", 33, 3, 41, 3, -2),
    Sketcher.Constraint("Symmetric", 16, 3, 44, 3, -2),
    Sketcher.Constraint("Symmetric", 27, 3, 47, 3, -2),
    Sketcher.Constraint("Symmetric", 25, 3, 49, 3, -2),
    Sketcher.Constraint("Symmetric", 21, 3, 53, 3, -2),
    Sketcher.Constraint("Symmetric", 19, 3, 55, 3, -2),
    Sketcher.Constraint("Symmetric", 7, 3, 58, 3, -2),
    Sketcher.Constraint("Symmetric", 4, 3, 61, 3, -2),
    Sketcher.Constraint("Symmetric", 2, 3, 63, 3, -2),
    Sketcher.Constraint("Symmetric", 12, 3, 67, 3, -2),
    Sketcher.Constraint("Symmetric", 10, 3, 69, 3, -2),
    Sketcher.Constraint("Symmetric", 29, 2, 30, 2, -2),
    Sketcher.Constraint("Parallel", 11, 20),
    Sketcher.Constraint("Parallel", 3, 26),
    Sketcher.Constraint("Parallel", 20, 34),
    Sketcher.Constraint("Parallel", 26, 40),
    Sketcher.Constraint("Horizontal", 4, 3, 10, 3),
    Sketcher.Constraint("Horizontal", 2, 3, 12, 3),
    Sketcher.Constraint("Horizontal", 7, 3, 16, 3),
    Sketcher.Constraint("Horizontal", 10, 3, 19, 3),
    Sketcher.Constraint("Horizontal", 12, 3, 21, 3),
    Sketcher.Constraint("Horizontal", 21, 3, 25, 3),
    Sketcher.Constraint("Horizontal", 19, 3, 27, 3),
    Sketcher.Constraint("Horizontal", 16, 3, 30, 3),
    Sketcher.Constraint("Horizontal", 27, 3, 33, 3),
    Sketcher.Constraint("Horizontal", 25, 3, 35, 3),
    Sketcher.Constraint("Horizontal", 58, 3, 5, 2),
    Sketcher.Constraint("Horizontal", 6, 2, 7, 2),
    Sketcher.Constraint("Horizontal", 8, 2, 14, 2),
    Sketcher.Constraint("Horizontal", 15, 2, 16, 2),
    Sketcher.Constraint("Horizontal", 13, 2, 22, 2),
    Sketcher.Constraint("Horizontal", 17, 2, 28, 2),
    Sketcher.Constraint("Horizontal", 23, 2, 36, 2),
    Sketcher.Constraint("Horizontal", 31, 2, 42, 2),
    Sketcher.Constraint("Horizontal", 43, 2, 44, 2),
    Sketcher.Constraint("Horizontal", 37, 2, 50, 2),
    Sketcher.Constraint("Horizontal", 45, 2, 56, 2),
    Sketcher.Constraint("Horizontal", 57, 2, 58, 2),
    Sketcher.Constraint("Horizontal", 51, 2, 64, 2),
    Sketcher.Constraint("Equal", 6, 8),
    Sketcher.Constraint("Equal", 8, 15),
    Sketcher.Constraint("Equal", 15, 17),
    Sketcher.Constraint("Equal", 17, 29),
    Sketcher.Constraint("Radius", 7, Q("0.5 in")),
    Sketcher.Constraint("DistanceX", 17, 2, -1, 1, Q("2.8 in")),
    Sketcher.Constraint("DistanceX", 6, 2, 6, 1, Q("0.175 in")),
    Sketcher.Constraint("DistanceX", 7, 3, -1, 1, Q("4.25 in")),
    Sketcher.Constraint("DistanceY", -1, 1, 7, 3, Q("1.75 in")),
    Sketcher.Constraint("DistanceY", 0, 2, -1, 1, Q("2.25 in")),
    Sketcher.Constraint("Radius", 2, Q("9.525009 mm")),
    Sketcher.Constraint("Distance", 3, Q("7.038701 mm")),
    Sketcher.Constraint("DistanceY", 1, 1, 1, 2, Q("61.441641 mm")),
    Sketcher.Constraint("DistanceY", 5, 1, 5, 2, Q("25.881641 mm")),
])
sketch3.setExpression("Constraints[172]", "Params.sketch3_radius")
sketch3.setExpression("Constraints[174]", "Params.sketch3_width")
pocket2 = body.newObject("PartDesign::Pocket", "Pocket001")
pocket2.Profile = sketch3
pocket2.setExpression("Length", "Params.pocket2_length")
body2 = doc.addObject("PartDesign::Body", "Body001")

# Sketch on YZ plane
sketch4 = body2.newObject("Sketcher::SketchObject", "Sketch003")
sketch4.AttachmentSupport = (doc.getObject("YZ_Plane001"), [""])
sketch4.MapMode = "FlatFace"
sketch4.AttachmentOffset = App.Placement(V(0, 0, 5.5 * 25.4), App.Rotation())
sketch4.addGeometry([
    Part.LineSegment(V(-76.2, 60.620756, 0), V(-76.2, 53.975, 0)),  # 0
    Part.LineSegment(V(-76.2, 53.975, 0), V(-63.369112, 53.975, 0)),  # 1
    Part.LineSegment(V(-63.369112, 53.975, 0), V(-65.712297, 44.577, 0)),  # 2
    Part.LineSegment(V(-65.712297, 44.577, 0), V(65.712297, 44.577, 0)),  # 3
    Part.LineSegment(V(65.712297, 44.577, 0), V(63.369112, 53.975, 0)),  # 4
    Part.LineSegment(V(63.369112, 53.975, 0), V(76.2, 53.975, 0)),  # 5
    Part.LineSegment(V(76.2, 53.975, 0), V(76.2, 60.620756, 0)),  # 6
    Part.LineSegment(V(76.2, 60.620756, 0), V(-76.2, 60.620756, 0)),  # 7
], False)
sketch4.addConstraint([
    Sketcher.Constraint("Coincident", 0, 2, 1, 1),
    Sketcher.Constraint("Coincident", 1, 2, 2, 1),
    Sketcher.Constraint("Coincident", 2, 2, 3, 1),
    Sketcher.Constraint("Coincident", 3, 2, 4, 1),
    Sketcher.Constraint("Coincident", 4, 2, 5, 1),
    Sketcher.Constraint("Coincident", 5, 2, 6, 1),
    Sketcher.Constraint("Coincident", 6, 2, 7, 1),
    Sketcher.Constraint("Coincident", 7, 2, 0, 1),
    Sketcher.Constraint("Vertical", 0),
    Sketcher.Constraint("Horizontal", 1),
    Sketcher.Constraint("Horizontal", 3),
    Sketcher.Constraint("Horizontal", 5),
    Sketcher.Constraint("Vertical", 6),
    Sketcher.Constraint("Horizontal", 7),
    Sketcher.Constraint("Symmetric", 1, 2, 4, 2, -2),
    Sketcher.Constraint("Equal", 1, 5),
    Sketcher.Constraint("Equal", 2, 4),
    Sketcher.Constraint("DistanceX", 7, 2, 7, 1, Q("6 in")),
    Sketcher.Constraint("Angle", 2, Q("-104.000002 deg")),
    Sketcher.Constraint("DistanceY", 2, 2, 1, 2, Q("0.37 in")),
    Sketcher.Constraint("DistanceY", -1, 1, 0, 2, Q("2.125 in")),
    Sketcher.Constraint("DistanceX", 1, 1, 1, 2, Q("12.830888 mm")),
    Sketcher.Constraint("DistanceY", 0, 2, 0, 1, Q("6.645756 mm")),
])
sketch4.setExpression("Constraints[17]", "Params.sketch4_width")
pad2 = body2.newObject("PartDesign::Pad", "Pad001")
pad2.Profile = sketch4
pad2.setExpression("Length", "Params.pad2_length")
pad2.Reversed = True

doc.recompute()
